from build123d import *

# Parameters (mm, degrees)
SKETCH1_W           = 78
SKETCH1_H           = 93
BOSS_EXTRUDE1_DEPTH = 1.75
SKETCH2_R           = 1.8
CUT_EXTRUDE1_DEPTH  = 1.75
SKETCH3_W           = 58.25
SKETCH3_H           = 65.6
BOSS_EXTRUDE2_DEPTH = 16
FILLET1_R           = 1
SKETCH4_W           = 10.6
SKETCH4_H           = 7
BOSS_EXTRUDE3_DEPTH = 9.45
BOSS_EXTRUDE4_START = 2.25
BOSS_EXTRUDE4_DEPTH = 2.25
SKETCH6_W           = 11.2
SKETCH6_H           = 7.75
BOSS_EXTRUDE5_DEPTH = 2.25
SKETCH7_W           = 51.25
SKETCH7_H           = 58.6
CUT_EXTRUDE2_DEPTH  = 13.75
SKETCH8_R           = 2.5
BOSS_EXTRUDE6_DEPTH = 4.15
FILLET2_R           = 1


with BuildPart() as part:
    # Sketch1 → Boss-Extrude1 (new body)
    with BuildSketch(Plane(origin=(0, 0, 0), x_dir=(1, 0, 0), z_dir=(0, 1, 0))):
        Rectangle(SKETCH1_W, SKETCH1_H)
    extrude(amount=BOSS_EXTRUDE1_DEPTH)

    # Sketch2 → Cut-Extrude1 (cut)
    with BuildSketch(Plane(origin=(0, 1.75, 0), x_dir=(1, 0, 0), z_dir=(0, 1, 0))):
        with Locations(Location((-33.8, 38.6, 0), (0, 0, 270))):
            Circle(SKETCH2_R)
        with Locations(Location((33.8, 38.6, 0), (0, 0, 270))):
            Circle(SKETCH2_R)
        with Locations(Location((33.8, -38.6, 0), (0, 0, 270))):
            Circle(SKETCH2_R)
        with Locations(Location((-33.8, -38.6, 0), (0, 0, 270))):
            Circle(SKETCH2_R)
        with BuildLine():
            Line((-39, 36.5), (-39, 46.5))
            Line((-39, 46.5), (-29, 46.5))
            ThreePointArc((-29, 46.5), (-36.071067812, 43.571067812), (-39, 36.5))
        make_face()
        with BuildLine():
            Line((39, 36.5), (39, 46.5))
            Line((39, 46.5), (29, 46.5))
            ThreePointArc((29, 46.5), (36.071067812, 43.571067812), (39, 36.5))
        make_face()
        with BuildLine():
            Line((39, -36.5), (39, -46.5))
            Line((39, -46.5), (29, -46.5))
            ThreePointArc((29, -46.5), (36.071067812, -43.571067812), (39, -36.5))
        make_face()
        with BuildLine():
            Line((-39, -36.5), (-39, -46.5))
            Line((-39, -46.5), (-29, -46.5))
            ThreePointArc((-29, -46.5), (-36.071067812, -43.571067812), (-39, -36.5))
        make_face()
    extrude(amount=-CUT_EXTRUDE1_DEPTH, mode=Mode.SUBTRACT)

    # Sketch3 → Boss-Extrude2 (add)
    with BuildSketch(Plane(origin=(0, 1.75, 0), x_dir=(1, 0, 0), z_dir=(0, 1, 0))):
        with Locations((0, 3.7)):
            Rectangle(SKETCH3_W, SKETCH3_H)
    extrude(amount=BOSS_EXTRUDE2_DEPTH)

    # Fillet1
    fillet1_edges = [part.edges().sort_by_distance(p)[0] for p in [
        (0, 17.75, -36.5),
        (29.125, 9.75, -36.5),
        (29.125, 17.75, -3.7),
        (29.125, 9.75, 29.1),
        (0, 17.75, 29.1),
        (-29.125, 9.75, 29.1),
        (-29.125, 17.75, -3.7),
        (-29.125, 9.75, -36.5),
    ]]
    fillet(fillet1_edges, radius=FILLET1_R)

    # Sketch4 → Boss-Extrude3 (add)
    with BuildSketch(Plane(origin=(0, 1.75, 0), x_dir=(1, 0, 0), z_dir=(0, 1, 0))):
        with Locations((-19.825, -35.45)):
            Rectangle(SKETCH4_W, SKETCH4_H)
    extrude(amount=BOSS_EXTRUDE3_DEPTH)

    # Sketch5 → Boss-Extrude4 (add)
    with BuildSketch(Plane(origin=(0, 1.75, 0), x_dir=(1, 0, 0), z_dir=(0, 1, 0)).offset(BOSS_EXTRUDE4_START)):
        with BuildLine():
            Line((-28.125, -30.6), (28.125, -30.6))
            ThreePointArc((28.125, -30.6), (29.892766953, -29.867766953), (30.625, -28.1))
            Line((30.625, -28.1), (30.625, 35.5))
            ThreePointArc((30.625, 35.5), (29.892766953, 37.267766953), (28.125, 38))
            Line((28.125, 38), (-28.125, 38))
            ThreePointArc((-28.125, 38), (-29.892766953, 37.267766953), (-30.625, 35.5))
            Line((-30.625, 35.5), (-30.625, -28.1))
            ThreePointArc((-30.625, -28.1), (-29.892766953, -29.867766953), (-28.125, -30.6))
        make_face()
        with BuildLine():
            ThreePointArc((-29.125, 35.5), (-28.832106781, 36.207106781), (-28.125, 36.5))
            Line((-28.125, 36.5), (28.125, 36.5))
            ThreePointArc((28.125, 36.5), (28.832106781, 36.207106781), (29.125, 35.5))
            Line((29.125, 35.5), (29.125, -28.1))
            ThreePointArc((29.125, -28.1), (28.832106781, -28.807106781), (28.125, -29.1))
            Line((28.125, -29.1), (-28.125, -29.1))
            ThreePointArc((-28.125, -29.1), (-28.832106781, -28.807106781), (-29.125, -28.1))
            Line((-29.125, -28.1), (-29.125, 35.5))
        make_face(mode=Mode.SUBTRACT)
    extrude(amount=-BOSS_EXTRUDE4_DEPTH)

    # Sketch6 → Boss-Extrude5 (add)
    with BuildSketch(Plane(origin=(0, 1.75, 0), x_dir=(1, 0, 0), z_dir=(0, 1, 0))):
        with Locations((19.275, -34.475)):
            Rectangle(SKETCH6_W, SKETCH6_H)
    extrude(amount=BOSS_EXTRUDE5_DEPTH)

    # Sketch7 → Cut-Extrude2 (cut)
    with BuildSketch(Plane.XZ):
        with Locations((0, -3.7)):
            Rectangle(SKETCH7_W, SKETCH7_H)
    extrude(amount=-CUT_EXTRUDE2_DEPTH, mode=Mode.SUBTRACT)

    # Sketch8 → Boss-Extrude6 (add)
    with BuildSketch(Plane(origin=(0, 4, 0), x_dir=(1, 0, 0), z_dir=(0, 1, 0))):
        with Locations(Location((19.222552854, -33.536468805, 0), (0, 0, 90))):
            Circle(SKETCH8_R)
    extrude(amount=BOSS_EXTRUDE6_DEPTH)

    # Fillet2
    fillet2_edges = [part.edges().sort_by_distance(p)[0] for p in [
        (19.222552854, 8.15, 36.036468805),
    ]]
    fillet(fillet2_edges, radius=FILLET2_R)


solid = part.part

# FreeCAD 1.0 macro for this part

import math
import FreeCAD as App
import Part
import Sketcher
Q = App.Units.Quantity


def edges_at(feature, points):
    """Names of the edges that pass closest to the given points."""
    edges = feature.Shape.Edges
    near = lambda p: min(range(len(edges)), key=lambda i: edges[i].distToShape(Part.Vertex(*p))[0])
    return sorted({f"Edge{near(p) + 1}" for p in points})

doc = App.newDocument("Part")
body = doc.addObject("PartDesign::Body", "Body")

# Sketch on XZ plane
sketch1 = body.newObject("Sketcher::SketchObject", "Sketch")
sketch1.AttachmentSupport = (doc.getObject("XZ_Plane"), [""])
sketch1.MapMode = "FlatFace"
sketch1.addGeometry(Part.LineSegment(App.Vector(-39, -46, 0), App.Vector(-39, 46, 0)), False)
sketch1.addGeometry(Part.LineSegment(App.Vector(-39, 46, 0), App.Vector(39, 46, 0)), False)
sketch1.addGeometry(Part.LineSegment(App.Vector(39, 46, 0), App.Vector(39, -46, 0)), False)
sketch1.addGeometry(Part.LineSegment(App.Vector(39, -46, 0), App.Vector(-39, -46, 0)), False)
sketch1.addConstraint(Sketcher.Constraint("Coincident", 0, 2, 1, 1))
sketch1.addConstraint(Sketcher.Constraint("Coincident", 1, 2, 2, 1))
sketch1.addConstraint(Sketcher.Constraint("Coincident", 2, 2, 3, 1))
sketch1.addConstraint(Sketcher.Constraint("Coincident", 3, 2, 0, 1))
sketch1.addConstraint(Sketcher.Constraint("Vertical", 0))
sketch1.addConstraint(Sketcher.Constraint("Horizontal", 1))
sketch1.addConstraint(Sketcher.Constraint("Vertical", 2))
sketch1.addConstraint(Sketcher.Constraint("Horizontal", 3))
sketch1.addConstraint(Sketcher.Constraint("Symmetric", 0, 2, 2, 2, -1, 1))
sketch1.addConstraint(Sketcher.Constraint("DistanceX", 1, 1, 1, 2, Q("78 mm")))
sketch1.addConstraint(Sketcher.Constraint("DistanceY", 0, 1, 0, 2, Q("93 mm")))
pad1 = body.newObject("PartDesign::Pad", "Pad")
pad1.Profile = sketch1
pad1.Length = 1.75
pad1.Reversed = True

# Sketch on XZ plane
sketch2 = body.newObject("Sketcher::SketchObject", "Sketch001")
sketch2.AttachmentSupport = (doc.getObject("XZ_Plane"), [""])
sketch2.MapMode = "FlatFace"
sketch2.AttachmentOffset = App.Placement(App.Vector(0, 0, -1.75), App.Rotation())
sketch2.addGeometry(Part.Circle(App.Vector(-33.8, -38.6, 0), App.Vector(0, 0, 1), 1.8), False)
sketch2.addGeometry(Part.Circle(App.Vector(33.8, -38.6, 0), App.Vector(0, 0, 1), 1.8), False)
sketch2.addGeometry(Part.Circle(App.Vector(33.8, 38.6, 0), App.Vector(0, 0, 1), 1.8), False)
sketch2.addGeometry(Part.Circle(App.Vector(-33.8, 38.6, 0), App.Vector(0, 0, 1), 1.8), False)
sketch2.addGeometry(Part.LineSegment(App.Vector(-39, -46.5, 0), App.Vector(-39, -36.5, 0)), False)
sketch2.addGeometry(Part.ArcOfCircle(Part.Circle(App.Vector(-29, -36.5, 0), App.Vector(0, 0, 1), 10), math.radians(180), math.radians(270)), False)
sketch2.addGeometry(Part.LineSegment(App.Vector(-29, -46.5, 0), App.Vector(-39, -46.5, 0)), False)
sketch2.addGeometry(Part.LineSegment(App.Vector(39, -36.5, 0), App.Vector(39, -46.5, 0)), False)
sketch2.addGeometry(Part.LineSegment(App.Vector(39, -46.5, 0), App.Vector(29, -46.5, 0)), False)
sketch2.addGeometry(Part.ArcOfCircle(Part.Circle(App.Vector(29, -36.5, 0), App.Vector(0, 0, 1), 10), math.radians(-90), math.radians(0)), False)
sketch2.addGeometry(Part.LineSegment(App.Vector(39, 46.5, 0), App.Vector(39, 36.5, 0)), False)
sketch2.addGeometry(Part.ArcOfCircle(Part.Circle(App.Vector(29, 36.5, 0), App.Vector(0, 0, 1), 10), math.radians(0), math.radians(90)), False)
sketch2.addGeometry(Part.LineSegment(App.Vector(29, 46.5, 0), App.Vector(39, 46.5, 0)), False)
sketch2.addGeometry(Part.LineSegment(App.Vector(-39, 36.5, 0), App.Vector(-39, 46.5, 0)), False)
sketch2.addGeometry(Part.LineSegment(App.Vector(-39, 46.5, 0), App.Vector(-29, 46.5, 0)), False)
sketch2.addGeometry(Part.ArcOfCircle(Part.Circle(App.Vector(-29, 36.5, 0), App.Vector(0, 0, 1), 10), math.radians(90), math.radians(180)), False)
sketch2.addConstraint(Sketcher.Constraint("Tangent", 4, 2, 5, 1))
sketch2.addConstraint(Sketcher.Constraint("Tangent", 5, 2, 6, 1))
sketch2.addConstraint(Sketcher.Constraint("Coincident", 6, 2, 4, 1))
sketch2.addConstraint(Sketcher.Constraint("Coincident", 7, 2, 8, 1))
sketch2.addConstraint(Sketcher.Constraint("Tangent", 8, 2, 9, 1))
sketch2.addConstraint(Sketcher.Constraint("Tangent", 9, 2, 7, 1))
sketch2.addConstraint(Sketcher.Constraint("Tangent", 10, 2, 11, 1))
sketch2.addConstraint(Sketcher.Constraint("Tangent", 11, 2, 12, 1))
sketch2.addConstraint(Sketcher.Constraint("Coincident", 12, 2, 10, 1))
sketch2.addConstraint(Sketcher.Constraint("Coincident", 13, 2, 14, 1))
sketch2.addConstraint(Sketcher.Constraint("Tangent", 14, 2, 15, 1))
sketch2.addConstraint(Sketcher.Constraint("Tangent", 15, 2, 13, 1))
sketch2.addConstraint(Sketcher.Constraint("Vertical", 4))
sketch2.addConstraint(Sketcher.Constraint("Horizontal", 6))
sketch2.addConstraint(Sketcher.Constraint("Vertical", 7))
sketch2.addConstraint(Sketcher.Constraint("Horizontal", 8))
sketch2.addConstraint(Sketcher.Constraint("Vertical", 10))
sketch2.addConstraint(Sketcher.Constraint("Horizontal", 12))
sketch2.addConstraint(Sketcher.Constraint("Vertical", 13))
sketch2.addConstraint(Sketcher.Constraint("Horizontal", 14))
sketch2.addConstraint(Sketcher.Constraint("Equal", 0, 1))
sketch2.addConstraint(Sketcher.Constraint("Equal", 1, 2))
sketch2.addConstraint(Sketcher.Constraint("Equal", 2, 3))
sketch2.addConstraint(Sketcher.Constraint("Equal", 5, 9))
sketch2.addConstraint(Sketcher.Constraint("Equal", 9, 11))
sketch2.addConstraint(Sketcher.Constraint("Equal", 11, 15))
sketch2.addConstraint(Sketcher.Constraint("Symmetric", 0, 3, 2, 3, -1, 1))
sketch2.addConstraint(Sketcher.Constraint("Symmetric", 1, 3, 3, 3, -1, 1))
sketch2.addConstraint(Sketcher.Constraint("Symmetric", 5, 3, 11, 3, -1, 1))
sketch2.addConstraint(Sketcher.Constraint("Symmetric", 9, 3, 15, 3, -1, 1))
sketch2.addConstraint(Sketcher.Constraint("Symmetric", 0, 3, 1, 3, -2))
sketch2.addConstraint(Sketcher.Constraint("Symmetric", 5, 3, 9, 3, -2))
sketch2.addConstraint(Sketcher.Constraint("Radius", 5, Q("10 mm")))
sketch2.addConstraint(Sketcher.Constraint("Diameter", 0, Q("3.6 mm")))
sketch2.addConstraint(Sketcher.Constraint("DistanceX", 5, 3, -1, 1, Q("29 mm")))
sketch2.addConstraint(Sketcher.Constraint("DistanceY", 9, 3, 11, 3, Q("73 mm")))
sketch2.addConstraint(Sketcher.Constraint("DistanceX", 0, 3, -1, 1, Q("33.8 mm")))
sketch2.addConstraint(Sketcher.Constraint("DistanceY", 0, 3, -1, 1, Q("38.6 mm")))
pocket1 = body.newObject("PartDesign::Pocket", "Pocket")
pocket1.Profile = sketch2
pocket1.Length = 1.75
pocket1.Reversed = True

# Sketch on XZ plane
sketch3 = body.newObject("Sketcher::SketchObject", "Sketch002")
sketch3.AttachmentSupport = (doc.getObject("XZ_Plane"), [""])
sketch3.MapMode = "FlatFace"
sketch3.AttachmentOffset = App.Placement(App.Vector(0, 0, -1.75), App.Rotation())
sketch3.addGeometry(Part.LineSegment(App.Vector(-29, -36, 0), App.Vector(-29, 29, 0)), False)
sketch3.addGeometry(Part.LineSegment(App.Vector(-29, 29, 0), App.Vector(29, 29, 0)), False)
sketch3.addGeometry(Part.LineSegment(App.Vector(29, 29, 0), App.Vector(29, -36, 0)), False)
sketch3.addGeometry(Part.LineSegment(App.Vector(29, -36, 0), App.Vector(-29, -36, 0)), False)
sketch3.addConstraint(Sketcher.Constraint("Coincident", 0, 2, 1, 1))
sketch3.addConstraint(Sketcher.Constraint("Coincident", 1, 2, 2, 1))
sketch3.addConstraint(Sketcher.Constraint("Coincident", 2, 2, 3, 1))
sketch3.addConstraint(Sketcher.Constraint("Coincident", 3, 2, 0, 1))
sketch3.addConstraint(Sketcher.Constraint("Vertical", 0))
sketch3.addConstraint(Sketcher.Constraint("Horizontal", 1))
sketch3.addConstraint(Sketcher.Constraint("Vertical", 2))
sketch3.addConstraint(Sketcher.Constraint("Horizontal", 3))
sketch3.addConstraint(Sketcher.Constraint("DistanceY", 0, 1, 0, 2, Q("65.6 mm")))
sketch3.addConstraint(Sketcher.Constraint("DistanceX", 1, 1, 1, 2, Q("58.25 mm")))
sketch3.addConstraint(Sketcher.Constraint("DistanceY", -1, 1, 0, 2, Q("29.1 mm")))
sketch3.addConstraint(Sketcher.Constraint("DistanceX", 0, 2, -1, 1, Q("29.125 mm")))
pad2 = body.newObject("PartDesign::Pad", "Pad001")
pad2.Profile = sketch3
pad2.Length = 16
pad2.Reversed = True
doc.recompute()

fillet = body.newObject("PartDesign::Fillet", "Fillet")
fillet.Base = (pad2, edges_at(pad2, [
    (0, 17.75, -36.5),
    (29.125, 9.75, -36.5),
    (29.125, 17.75, -3.7),
    (29.125, 9.75, 29.1),
    (0, 17.75, 29.1),
    (-29.125, 9.75, 29.1),
    (-29.125, 17.75, -3.7),
    (-29.125, 9.75, -36.5),
]))
fillet.Radius = 1

# Sketch on XZ plane
sketch4 = body.newObject("Sketcher::SketchObject", "Sketch003")
sketch4.AttachmentSupport = (doc.getObject("XZ_Plane"), [""])
sketch4.MapMode = "FlatFace"
sketch4.AttachmentOffset = App.Placement(App.Vector(0, 0, -1.75), App.Rotation())
sketch4.addGeometry(Part.LineSegment(App.Vector(-25, 32, 0), App.Vector(-25, 39, 0)), False)
sketch4.addGeometry(Part.LineSegment(App.Vector(-25, 39, 0), App.Vector(-15, 39, 0)), False)
sketch4.addGeometry(Part.LineSegment(App.Vector(-15, 39, 0), App.Vector(-15, 32, 0)), False)
sketch4.addGeometry(Part.LineSegment(App.Vector(-15, 32, 0), App.Vector(-25, 32, 0)), False)
sketch4.addConstraint(Sketcher.Constraint("Coincident", 0, 2, 1, 1))
sketch4.addConstraint(Sketcher.Constraint("Coincident", 1, 2, 2, 1))
sketch4.addConstraint(Sketcher.Constraint("Coincident", 2, 2, 3, 1))
sketch4.addConstraint(Sketcher.Constraint("Coincident", 3, 2, 0, 1))
sketch4.addConstraint(Sketcher.Constraint("Vertical", 0))
sketch4.addConstraint(Sketcher.Constraint("Horizontal", 1))
sketch4.addConstraint(Sketcher.Constraint("Vertical", 2))
sketch4.addConstraint(Sketcher.Constraint("Horizontal", 3))
sketch4.addConstraint(Sketcher.Constraint("DistanceY", 0, 1, 0, 2, Q("7 mm")))
sketch4.addConstraint(Sketcher.Constraint("DistanceX", 1, 1, 1, 2, Q("10.6 mm")))
sketch4.addConstraint(Sketcher.Constraint("DistanceY", -1, 1, 0, 2, Q("38.95 mm")))
sketch4.addConstraint(Sketcher.Constraint("DistanceX", 0, 2, -1, 1, Q("25.125 mm")))
pad3 = body.newObject("PartDesign::Pad", "Pad002")
pad3.Profile = sketch4
pad3.Length = 9.45
pad3.Reversed = True

# Sketch on XZ plane
sketch5 = body.newObject("Sketcher::SketchObject", "Sketch004")
sketch5.AttachmentSupport = (doc.getObject("XZ_Plane"), [""])
sketch5.MapMode = "FlatFace"
sketch5.AttachmentOffset = App.Placement(App.Vector(0, 0, -4), App.Rotation())
sketch5.addGeometry(Part.LineSegment(App.Vector(-28.1, 30.6, 0), App.Vector(28.1, 30.6, 0)), False)
sketch5.addGeometry(Part.ArcOfCircle(Part.Circle(App.Vector(28.1, 28.1, 0), App.Vector(0, 0, 1), 2.5), math.radians(0), math.radians(90)), False)
sketch5.addGeometry(Part.LineSegment(App.Vector(30.6, 28.1, 0), App.Vector(30.6, -35.5, 0)), False)
sketch5.addGeometry(Part.ArcOfCircle(Part.Circle(App.Vector(28.1, -35.5, 0), App.Vector(0, 0, 1), 2.5), math.radians(-90), math.radians(0)), False)
sketch5.addGeometry(Part.LineSegment(App.Vector(28.1, -38, 0), App.Vector(-28.1, -38, 0)), False)
sketch5.addGeometry(Part.ArcOfCircle(Part.Circle(App.Vector(-28.1, -35.5, 0), App.Vector(0, 0, 1), 2.5), math.radians(180), math.radians(270)), False)
sketch5.addGeometry(Part.LineSegment(App.Vector(-30.6, -35.5, 0), App.Vector(-30.6, 28.1, 0)), False)
sketch5.addGeometry(Part.ArcOfCircle(Part.Circle(App.Vector(-28.1, 28.1, 0), App.Vector(0, 0, 1), 2.5), math.radians(90), math.radians(180)), False)
sketch5.addGeometry(Part.LineSegment(App.Vector(-29.1, 28.1, 0), App.Vector(-29.1, -35.5, 0)), False)
sketch5.addGeometry(Part.ArcOfCircle(Part.Circle(App.Vector(-28.1, -35.5, 0), App.Vector(0, 0, 1), 1), math.radians(-180), math.radians(-90)), False)
sketch5.addGeometry(Part.LineSegment(App.Vector(-28.1, -36.5, 0), App.Vector(28.1, -36.5, 0)), False)
sketch5.addGeometry(Part.ArcOfCircle(Part.Circle(App.Vector(28.1, -35.5, 0), App.Vector(0, 0, 1), 1), math.radians(-90), math.radians(0)), False)
sketch5.addGeometry(Part.LineSegment(App.Vector(29.1, -35.5, 0), App.Vector(29.1, 28.1, 0)), False)
sketch5.addGeometry(Part.ArcOfCircle(Part.Circle(App.Vector(28.1, 28.1, 0), App.Vector(0, 0, 1), 1), math.radians(0), math.radians(90)), False)
sketch5.addGeometry(Part.LineSegment(App.Vector(28.1, 29.1, 0), App.Vector(-28.1, 29.1, 0)), False)
sketch5.addGeometry(Part.ArcOfCircle(Part.Circle(App.Vector(-28.1, 28.1, 0), App.Vector(0, 0, 1), 1), math.radians(90), math.radians(180)), False)
sketch5.addConstraint(Sketcher.Constraint("Tangent", 0, 2, 1, 2))
sketch5.addConstraint(Sketcher.Constraint("Tangent", 1, 1, 2, 1))
sketch5.addConstraint(Sketcher.Constraint("Tangent", 2, 2, 3, 2))
sketch5.addConstraint(Sketcher.Constraint("Tangent", 3, 1, 4, 1))
sketch5.addConstraint(Sketcher.Constraint("Tangent", 4, 2, 5, 2))
sketch5.addConstraint(Sketcher.Constraint("Tangent", 5, 1, 6, 1))
sketch5.addConstraint(Sketcher.Constraint("Tangent", 6, 2, 7, 2))
sketch5.addConstraint(Sketcher.Constraint("Tangent", 7, 1, 0, 1))
sketch5.addConstraint(Sketcher.Constraint("Tangent", 8, 2, 9, 1))
sketch5.addConstraint(Sketcher.Constraint("Tangent", 9, 2, 10, 1))
sketch5.addConstraint(Sketcher.Constraint("Tangent", 10, 2, 11, 1))
sketch5.addConstraint(Sketcher.Constraint("Tangent", 11, 2, 12, 1))
sketch5.addConstraint(Sketcher.Constraint("Tangent", 12, 2, 13, 1))
sketch5.addConstraint(Sketcher.Constraint("Tangent", 13, 2, 14, 1))
sketch5.addConstraint(Sketcher.Constraint("Tangent", 14, 2, 15, 1))
sketch5.addConstraint(Sketcher.Constraint("Tangent", 15, 2, 8, 1))
sketch5.addConstraint(Sketcher.Constraint("Horizontal", 0))
sketch5.addConstraint(Sketcher.Constraint("Vertical", 2))
sketch5.addConstraint(Sketcher.Constraint("Horizontal", 4))
sketch5.addConstraint(Sketcher.Constraint("Vertical", 6))
sketch5.addConstraint(Sketcher.Constraint("Vertical", 8))
sketch5.addConstraint(Sketcher.Constraint("Horizontal", 10))
sketch5.addConstraint(Sketcher.Constraint("Vertical", 12))
sketch5.addConstraint(Sketcher.Constraint("Horizontal", 14))
sketch5.addConstraint(Sketcher.Constraint("Coincident", 9, 3, 5, 3))
sketch5.addConstraint(Sketcher.Constraint("Coincident", 11, 3, 3, 3))
sketch5.addConstraint(Sketcher.Constraint("Coincident", 13, 3, 1, 3))
sketch5.addConstraint(Sketcher.Constraint("Equal", 1, 3))
sketch5.addConstraint(Sketcher.Constraint("Equal", 3, 5))
sketch5.addConstraint(Sketcher.Constraint("Equal", 5, 7))
sketch5.addConstraint(Sketcher.Constraint("Equal", 13, 15))
sketch5.addConstraint(Sketcher.Constraint("Radius", 9, Q("1 mm")))
sketch5.addConstraint(Sketcher.Constraint("Radius", 1, Q("2.5 mm")))
sketch5.addConstraint(Sketcher.Constraint("DistanceY", 2, 2, 2, 1, Q("63.6 mm")))
sketch5.addConstraint(Sketcher.Constraint("DistanceY", 3, 1, -1, 1, Q("38 mm")))
sketch5.addConstraint(Sketcher.Constraint("DistanceX", 0, 1, 0, 2, Q("56.25 mm")))
sketch5.addConstraint(Sketcher.Constraint("DistanceX", -1, 1, 1, 3, Q("28.125 mm")))
pad4 = body.newObject("PartDesign::Pad", "Pad003")
pad4.Profile = sketch5
pad4.Length = 2.25

# Sketch on XZ plane
sketch6 = body.newObject("Sketcher::SketchObject", "Sketch005")
sketch6.AttachmentSupport = (doc.getObject("XZ_Plane"), [""])
sketch6.MapMode = "FlatFace"
sketch6.AttachmentOffset = App.Placement(App.Vector(0, 0, -1.75), App.Rotation())
sketch6.addGeometry(Part.LineSegment(App.Vector(14, 31, 0), App.Vector(14, 38, 0)), False)
sketch6.addGeometry(Part.LineSegment(App.Vector(14, 38, 0), App.Vector(25, 38, 0)), False)
sketch6.addGeometry(Part.LineSegment(App.Vector(25, 38, 0), App.Vector(25, 31, 0)), False)
sketch6.addGeometry(Part.LineSegment(App.Vector(25, 31, 0), App.Vector(14, 31, 0)), False)
sketch6.addConstraint(Sketcher.Constraint("Coincident", 0, 2, 1, 1))
sketch6.addConstraint(Sketcher.Constraint("Coincident", 1, 2, 2, 1))
sketch6.addConstraint(Sketcher.Constraint("Coincident", 2, 2, 3, 1))
sketch6.addConstraint(Sketcher.Constraint("Coincident", 3, 2, 0, 1))
sketch6.addConstraint(Sketcher.Constraint("Vertical", 0))
sketch6.addConstraint(Sketcher.Constraint("Horizontal", 1))
sketch6.addConstraint(Sketcher.Constraint("Vertical", 2))
sketch6.addConstraint(Sketcher.Constraint("Horizontal", 3))
sketch6.addConstraint(Sketcher.Constraint("DistanceX", 1, 1, 1, 2, Q("11.2 mm")))
sketch6.addConstraint(Sketcher.Constraint("DistanceY", 0, 1, 0, 2, Q("7.75 mm")))
sketch6.addConstraint(Sketcher.Constraint("DistanceY", -1, 1, 2, 2, Q("30.6 mm")))
sketch6.addConstraint(Sketcher.Constraint("DistanceX", -1, 1, 0, 2, Q("13.675 mm")))
pad5 = body.newObject("PartDesign::Pad", "Pad004")
pad5.Profile = sketch6
pad5.Length = 2.25
pad5.Reversed = True

# Sketch on XZ plane
sketch7 = body.newObject("Sketcher::SketchObject", "Sketch006")
sketch7.AttachmentSupport = (doc.getObject("XZ_Plane"), [""])
sketch7.MapMode = "FlatFace"
sketch7.addGeometry(Part.LineSegment(App.Vector(-26, 26, 0), App.Vector(-26, -33, 0)), False)
sketch7.addGeometry(Part.LineSegment(App.Vector(-26, -33, 0), App.Vector(26, -33, 0)), False)
sketch7.addGeometry(Part.LineSegment(App.Vector(26, -33, 0), App.Vector(26, 26, 0)), False)
sketch7.addGeometry(Part.LineSegment(App.Vector(26, 26, 0), App.Vector(-26, 26, 0)), False)
sketch7.addConstraint(Sketcher.Constraint("Coincident", 0, 2, 1, 1))
sketch7.addConstraint(Sketcher.Constraint("Coincident", 1, 2, 2, 1))
sketch7.addConstraint(Sketcher.Constraint("Coincident", 2, 2, 3, 1))
sketch7.addConstraint(Sketcher.Constraint("Coincident", 3, 2, 0, 1))
sketch7.addConstraint(Sketcher.Constraint("Vertical", 0))
sketch7.addConstraint(Sketcher.Constraint("Horizontal", 1))
sketch7.addConstraint(Sketcher.Constraint("Vertical", 2))
sketch7.addConstraint(Sketcher.Constraint("Horizontal", 3))
sketch7.addConstraint(Sketcher.Constraint("DistanceY", 0, 2, 0, 1, Q("58.6 mm")))
sketch7.addConstraint(Sketcher.Constraint("DistanceY", 0, 2, -1, 1, Q("33 mm")))
sketch7.addConstraint(Sketcher.Constraint("DistanceX", 1, 1, 1, 2, Q("51.25 mm")))
sketch7.addConstraint(Sketcher.Constraint("DistanceX", 0, 2, -1, 1, Q("25.625 mm")))
pocket2 = body.newObject("PartDesign::Pocket", "Pocket001")
pocket2.Profile = sketch7
pocket2.Length = 13.75

# Sketch on XZ plane
sketch8 = body.newObject("Sketcher::SketchObject", "Sketch007")
sketch8.AttachmentSupport = (doc.getObject("XZ_Plane"), [""])
sketch8.MapMode = "FlatFace"
sketch8.AttachmentOffset = App.Placement(App.Vector(0, 0, -4), App.Rotation())
sketch8.addGeometry(Part.Circle(App.Vector(19.2, 33.5, 0), App.Vector(0, 0, 1), 2.5), False)
sketch8.addConstraint(Sketcher.Constraint("Diameter", 0, Q("5 mm")))
sketch8.addConstraint(Sketcher.Constraint("DistanceY", -1, 1, 0, 3, Q("33.536469 mm")))
sketch8.addConstraint(Sketcher.Constraint("DistanceX", -1, 1, 0, 3, Q("19.222553 mm")))
pad6 = body.newObject("PartDesign::Pad", "Pad005")
pad6.Profile = sketch8
pad6.Length = 4.15
pad6.Reversed = True
doc.recompute()

fillet2 = body.newObject("PartDesign::Fillet", "Fillet001")
fillet2.Base = (pad6, edges_at(pad6, [(19.223, 8.15, 36.036)]))
fillet2.Radius = 1

doc.recompute()
